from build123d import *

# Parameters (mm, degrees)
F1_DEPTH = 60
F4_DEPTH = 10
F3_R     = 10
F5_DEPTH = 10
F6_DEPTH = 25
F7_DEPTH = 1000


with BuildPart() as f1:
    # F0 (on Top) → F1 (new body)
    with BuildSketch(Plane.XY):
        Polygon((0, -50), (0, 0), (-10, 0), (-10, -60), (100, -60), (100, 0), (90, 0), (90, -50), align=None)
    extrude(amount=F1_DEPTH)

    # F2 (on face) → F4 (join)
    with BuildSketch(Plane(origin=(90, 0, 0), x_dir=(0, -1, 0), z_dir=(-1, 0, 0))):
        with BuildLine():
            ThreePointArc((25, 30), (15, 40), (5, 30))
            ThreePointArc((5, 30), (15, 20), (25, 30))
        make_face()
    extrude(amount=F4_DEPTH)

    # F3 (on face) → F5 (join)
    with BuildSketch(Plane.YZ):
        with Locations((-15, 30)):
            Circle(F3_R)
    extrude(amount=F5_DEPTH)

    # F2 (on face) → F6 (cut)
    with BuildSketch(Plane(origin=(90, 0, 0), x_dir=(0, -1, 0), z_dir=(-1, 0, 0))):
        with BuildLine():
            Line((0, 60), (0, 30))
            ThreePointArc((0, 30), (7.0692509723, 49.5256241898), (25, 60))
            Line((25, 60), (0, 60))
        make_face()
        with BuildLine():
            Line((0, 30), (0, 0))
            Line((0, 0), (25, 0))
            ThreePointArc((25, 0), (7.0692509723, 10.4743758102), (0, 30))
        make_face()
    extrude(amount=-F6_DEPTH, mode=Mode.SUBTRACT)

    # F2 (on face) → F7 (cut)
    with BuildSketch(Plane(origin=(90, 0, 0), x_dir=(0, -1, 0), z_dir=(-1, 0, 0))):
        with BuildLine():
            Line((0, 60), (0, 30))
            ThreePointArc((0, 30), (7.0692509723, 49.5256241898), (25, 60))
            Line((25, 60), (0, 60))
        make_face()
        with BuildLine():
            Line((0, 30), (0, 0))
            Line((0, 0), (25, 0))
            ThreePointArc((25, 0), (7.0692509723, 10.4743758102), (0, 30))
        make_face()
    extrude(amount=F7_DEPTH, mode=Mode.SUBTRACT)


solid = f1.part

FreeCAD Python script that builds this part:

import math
import FreeCAD as App
import Part
import Sketcher

V = App.Vector
Q = App.Units.Quantity


def add_polygon(sketch, points):
    """Adds a closed chain of lines whose ends are joined by coincident constraints."""
    first, n = sketch.GeometryCount, len(points)
    for a, b in zip(points, points[1:] + points[:1]):
        sketch.addGeometry(Part.LineSegment(App.Vector(*a, 0), App.Vector(*b, 0)), False)
    for i in range(n):
        sketch.addConstraint(Sketcher.Constraint("Coincident", first + i, 2, first + (i + 1) % n, 1))

doc = App.newDocument("Part")
body = doc.addObject("PartDesign::Body", "Body")

sketch1 = body.newObject("Sketcher::SketchObject", "Sketch")
sketch1.AttachmentSupport = (doc.getObject("XY_Plane"), [""])
sketch1.MapMode = "FlatFace"
add_polygon(sketch1, [(0, -50), (0, 0), (-10, 0), (-10, -60), (100, -60), (100, 0), (90, 0), (90, -50)])
sketch1.addConstraint([
    Sketcher.Constraint("Vertical", 0),
    Sketcher.Constraint("Horizontal", 1),
    Sketcher.Constraint("Vertical", 2),
    Sketcher.Constraint("Horizontal", 3),
    Sketcher.Constraint("Vertical", 4),
    Sketcher.Constraint("Horizontal", 5),
    Sketcher.Constraint("Vertical", 6),
    Sketcher.Constraint("Horizontal", 7),
    Sketcher.Constraint("Coincident", 0, 2, -1, 1),
    Sketcher.Constraint("PointOnObject", 4, 2, -1),
    Sketcher.Constraint("Equal", 1, 5),
    Sketcher.Constraint("DistanceX", 1, 2, 1, 1, Q("10 mm")),
    Sketcher.Constraint("DistanceX", 3, 1, 3, 2, Q("110 mm")),
    Sketcher.Constraint("DistanceY", 0, 1, 0, 2, Q("50 mm")),
    Sketcher.Constraint("DistanceY", 2, 2, 2, 1, Q("60 mm")),
])
pad1 = body.newObject("PartDesign::Pad", "Pad")
pad1.Profile = sketch1
pad1.Length = 60

sketch2 = body.newObject("Sketcher::SketchObject", "Sketch001")
sketch2.AttachmentSupport = (doc.getObject("YZ_Plane"), [""])
sketch2.MapMode = "FlatFace"
sketch2.AttachmentOffset = App.Placement(V(0, 0, 90), App.Rotation())
sketch2.addGeometry(Part.Circle(V(-15, 30, 0), V(0, 0, 1), 10), False)
sketch2.addConstraint([
    Sketcher.Constraint("Diameter", 0, Q("20 mm")),
    Sketcher.Constraint("DistanceX", 0, 3, -1, 1, Q("15 mm")),
    Sketcher.Constraint("DistanceY", -1, 1, 0, 3, Q("30 mm")),
])
pad2 = body.newObject("PartDesign::Pad", "Pad001")
pad2.Profile = sketch2
pad2.Length = 10
pad2.Reversed = True

sketch3 = body.newObject("Sketcher::SketchObject", "Sketch002")
sketch3.AttachmentSupport = (doc.getObject("YZ_Plane"), [""])
sketch3.MapMode = "FlatFace"
sketch3.addGeometry(Part.Circle(V(-15, 30, 0), V(0, 0, 1), 10), False)
sketch3.addConstraint([
    Sketcher.Constraint("Diameter", 0, Q("20 mm")),
    Sketcher.Constraint("DistanceX", 0, 3, -1, 1, Q("15 mm")),
    Sketcher.Constraint("DistanceY", -1, 1, 0, 3, Q("30 mm")),
])
pad3 = body.newObject("PartDesign::Pad", "Pad002")
pad3.Profile = sketch3
pad3.Length = 10

sketch4 = body.newObject("Sketcher::SketchObject", "Sketch003")
sketch4.AttachmentSupport = (doc.getObject("YZ_Plane"), [""])
sketch4.MapMode = "FlatFace"
sketch4.AttachmentOffset = App.Placement(V(0, 0, 90), App.Rotation())
sketch4.addGeometry([
    Part.LineSegment(V(0, 60, 0), V(0, 30, 0)),
    Part.ArcOfCircle(Part.Circle(V(-30, 30, 0), V(0, 0, 1), 30), math.radians(0), math.radians(80)),
    Part.LineSegment(V(-25, 60, 0), V(0, 60, 0)),
    Part.LineSegment(V(0, 30, 0), V(0, 0, 0)),
    Part.LineSegment(V(0, 0, 0), V(-25, 0, 0)),
    Part.ArcOfCircle(Part.Circle(V(-30, 30, 0), V(0, 0, 1), 30), math.radians(-80), math.radians(0)),
], False)
sketch4.addConstraint([
    Sketcher.Constraint("Tangent", 0, 2, 1, 1),
    Sketcher.Constraint("Coincident", 1, 2, 2, 1),
    Sketcher.Constraint("Coincident", 2, 2, 0, 1),
    Sketcher.Constraint("Coincident", 3, 2, 4, 1),
    Sketcher.Constraint("Coincident", 4, 2, 5, 1),
    Sketcher.Constraint("Tangent", 5, 2, 3, 1),
    Sketcher.Constraint("Vertical", 0),
    Sketcher.Constraint("Horizontal", 2),
    Sketcher.Constraint("Vertical", 3),
    Sketcher.Constraint("Horizontal", 4),
    Sketcher.Constraint("Coincident", 3, 2, -1, 1),
    Sketcher.Constraint("Coincident", 5, 3, 1, 3),
    Sketcher.Constraint("Equal", 1, 5),
    Sketcher.Constraint("Vertical", 1, 2, 4, 2),
    Sketcher.Constraint("Radius", 1, Q("30.5 mm")),
    Sketcher.Constraint("DistanceX", 2, 1, 2, 2, Q("25 mm")),
])
pocket1 = body.newObject("PartDesign::Pocket", "Pocket")
pocket1.Profile = sketch4
pocket1.Length = 25
pocket1.Reversed = True

sketch5 = body.newObject("Sketcher::SketchObject", "Sketch004")
sketch5.AttachmentSupport = (doc.getObject("YZ_Plane"), [""])
sketch5.MapMode = "FlatFace"
sketch5.AttachmentOffset = App.Placement(V(0, 0, 90), App.Rotation())
sketch5.addGeometry([
    Part.LineSegment(V(0, 60, 0), V(0, 30, 0)),
    Part.ArcOfCircle(Part.Circle(V(-30, 30, 0), V(0, 0, 1), 30), math.radians(0), math.radians(80)),
    Part.LineSegment(V(-25, 60, 0), V(0, 60, 0)),
    Part.LineSegment(V(0, 30, 0), V(0, 0, 0)),
    Part.LineSegment(V(0, 0, 0), V(-25, 0, 0)),
    Part.ArcOfCircle(Part.Circle(V(-30, 30, 0), V(0, 0, 1), 30), math.radians(-80), math.radians(0)),
], False)
sketch5.addConstraint([
    Sketcher.Constraint("Tangent", 0, 2, 1, 1),
    Sketcher.Constraint("Coincident", 1, 2, 2, 1),
    Sketcher.Constraint("Coincident", 2, 2, 0, 1),
    Sketcher.Constraint("Coincident", 3, 2, 4, 1),
    Sketcher.Constraint("Coincident", 4, 2, 5, 1),
    Sketcher.Constraint("Tangent", 5, 2, 3, 1),
    Sketcher.Constraint("Vertical", 0),
    Sketcher.Constraint("Horizontal", 2),
    Sketcher.Constraint("Vertical", 3),
    Sketcher.Constraint("Horizontal", 4),
    Sketcher.Constraint("Coincident", 3, 2, -1, 1),
    Sketcher.Constraint("Coincident", 5, 3, 1, 3),
    Sketcher.Constraint("Equal", 1, 5),
    Sketcher.Constraint("Vertical", 1, 2, 4, 2),
    Sketcher.Constraint("Radius", 1, Q("30.5 mm")),
    Sketcher.Constraint("DistanceX", 2, 1, 2, 2, Q("25 mm")),
])
pocket2 = body.newObject("PartDesign::Pocket", "Pocket001")
pocket2.Profile = sketch5
pocket2.Length = 1000

doc.recompute()
